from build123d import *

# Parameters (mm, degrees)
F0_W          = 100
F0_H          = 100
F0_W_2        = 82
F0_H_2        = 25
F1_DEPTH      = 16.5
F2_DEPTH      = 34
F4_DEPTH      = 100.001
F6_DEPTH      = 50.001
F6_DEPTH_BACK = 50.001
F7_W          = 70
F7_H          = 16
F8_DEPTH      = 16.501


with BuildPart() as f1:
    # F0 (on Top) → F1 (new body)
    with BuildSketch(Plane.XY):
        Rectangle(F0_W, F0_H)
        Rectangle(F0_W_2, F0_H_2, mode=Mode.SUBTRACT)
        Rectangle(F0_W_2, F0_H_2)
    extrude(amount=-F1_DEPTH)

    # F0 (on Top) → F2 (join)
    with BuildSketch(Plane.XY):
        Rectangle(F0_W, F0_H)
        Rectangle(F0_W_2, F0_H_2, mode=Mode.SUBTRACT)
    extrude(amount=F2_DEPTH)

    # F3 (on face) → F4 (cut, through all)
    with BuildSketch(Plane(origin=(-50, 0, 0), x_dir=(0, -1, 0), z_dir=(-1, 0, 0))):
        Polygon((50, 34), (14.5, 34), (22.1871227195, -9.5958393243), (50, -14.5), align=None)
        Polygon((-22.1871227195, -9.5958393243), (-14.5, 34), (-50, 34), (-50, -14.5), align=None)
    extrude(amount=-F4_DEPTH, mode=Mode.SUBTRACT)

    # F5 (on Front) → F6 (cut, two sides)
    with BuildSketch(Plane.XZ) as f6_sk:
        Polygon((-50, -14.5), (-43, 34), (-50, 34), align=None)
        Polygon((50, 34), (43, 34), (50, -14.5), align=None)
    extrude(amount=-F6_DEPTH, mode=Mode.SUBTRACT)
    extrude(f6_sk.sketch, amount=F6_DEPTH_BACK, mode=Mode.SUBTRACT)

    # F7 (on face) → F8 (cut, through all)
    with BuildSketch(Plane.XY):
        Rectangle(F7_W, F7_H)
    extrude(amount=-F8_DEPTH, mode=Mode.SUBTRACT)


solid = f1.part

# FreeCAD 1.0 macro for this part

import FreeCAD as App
import Part
import Sketcher
from FreeCAD import Vector
Q = App.Units.Quantity

doc = App.newDocument("Part")
params = doc.addObject("Spreadsheet::Sheet", "Params")
for row, (alias, value) in enumerate([
    ("sketch1_width", "100 mm"),
    ("pad1_length", "16.5 mm"),
    ("sketch2_width", "100 mm"),
    ("sketch2_width2", "82 mm"),
    ("sketch2_height", "25 mm"),
    ("pad2_length", "34 mm"),
    ("sketch3_width", "35.5 mm"),
    ("sketch3_height", "48.5 mm"),
    ("sketch4_width", "7 mm"),
    ("sketch4_height", "48.5 mm"),
    ("sketch5_width", "70 mm"),
    ("sketch5_height", "16 mm"),
], start=1):
    params.set(f"A{row}", alias)
    params.set(f"B{row}", "=" + value)
    params.setAlias(f"B{row}", alias)

body = doc.addObject("PartDesign::Body", "Body")

# Sketch on XY plane
sketch1 = body.newObject("Sketcher::SketchObject", "Sketch")
sketch1.AttachmentSupport = (doc.getObject("XY_Plane"), [""])
sketch1.MapMode = "FlatFace"
sketch1.addGeometry([
    Part.LineSegment(Vector(-50, 50, 0), Vector(-50, -50, 0)),
    Part.LineSegment(Vector(-50, -50, 0), Vector(50, -50, 0)),
    Part.LineSegment(Vector(50, -50, 0), Vector(50, 50, 0)),
    Part.LineSegment(Vector(50, 50, 0), Vector(-50, 50, 0)),
], False)
sketch1.addConstraint([
    Sketcher.Constraint("Coincident", 0, 2, 1, 1),
    Sketcher.Constraint("Coincident", 1, 2, 2, 1),
    Sketcher.Constraint("Coincident", 2, 2, 3, 1),
    Sketcher.Constraint("Coincident", 3, 2, 0, 1),
    Sketcher.Constraint("Vertical", 0),
    Sketcher.Constraint("Horizontal", 1),
    Sketcher.Constraint("Vertical", 2),
    Sketcher.Constraint("Horizontal", 3),
    Sketcher.Constraint("Symmetric", 0, 2, 2, 2, -1, 1),
    Sketcher.Constraint("Equal", 3, 0),
    Sketcher.Constraint("DistanceX", 1, 1, 1, 2, Q("100 mm")),
])
sketch1.setExpression("Constraints[10]", "Params.sketch1_width")
pad1 = body.newObject("PartDesign::Pad", "Pad")
pad1.Profile = sketch1
pad1.setExpression("Length", "Params.pad1_length")
pad1.Reversed = True

# Sketch on XY plane
sketch2 = body.newObject("Sketcher::SketchObject", "Sketch001")
sketch2.AttachmentSupport = (doc.getObject("XY_Plane"), [""])
sketch2.MapMode = "FlatFace"
sketch2.addGeometry([
    Part.LineSegment(Vector(-50, 50, 0), Vector(-50, -50, 0)),  # 0
    Part.LineSegment(Vector(-50, -50, 0), Vector(50, -50, 0)),  # 1
    Part.LineSegment(Vector(50, -50, 0), Vector(50, 50, 0)),  # 2
    Part.LineSegment(Vector(50, 50, 0), Vector(-50, 50, 0)),  # 3
    Part.LineSegment(Vector(41, -12, 0), Vector(-41, -12, 0)),  # 4
    Part.LineSegment(Vector(-41, -12, 0), Vector(-41, 12, 0)),  # 5
    Part.LineSegment(Vector(-41, 12, 0), Vector(41, 12, 0)),  # 6
    Part.LineSegment(Vector(41, 12, 0), Vector(41, -12, 0)),  # 7
], False)
sketch2.addConstraint([
    Sketcher.Constraint("Coincident", 0, 2, 1, 1),
    Sketcher.Constraint("Coincident", 1, 2, 2, 1),
    Sketcher.Constraint("Coincident", 2, 2, 3, 1),
    Sketcher.Constraint("Coincident", 3, 2, 0, 1),
    Sketcher.Constraint("Coincident", 4, 2, 5, 1),
    Sketcher.Constraint("Coincident", 5, 2, 6, 1),
    Sketcher.Constraint("Coincident", 6, 2, 7, 1),
    Sketcher.Constraint("Coincident", 7, 2, 4, 1),
    Sketcher.Constraint("Vertical", 0),
    Sketcher.Constraint("Horizontal", 1),
    Sketcher.Constraint("Vertical", 2),
    Sketcher.Constraint("Horizontal", 3),
    Sketcher.Constraint("Horizontal", 4),
    Sketcher.Constraint("Vertical", 5),
    Sketcher.Constraint("Horizontal", 6),
    Sketcher.Constraint("Vertical", 7),
    Sketcher.Constraint("Symmetric", 0, 2, 2, 2, -1, 1),
    Sketcher.Constraint("Symmetric", 4, 2, 6, 2, -1, 1),
    Sketcher.Constraint("Equal", 3, 0),
    Sketcher.Constraint("DistanceX", 1, 1, 1, 2, Q("100 mm")),
    Sketcher.Constraint("DistanceX", 4, 2, 4, 1, Q("82 mm")),
    Sketcher.Constraint("DistanceY", 5, 1, 5, 2, Q("25 mm")),
])
sketch2.setExpression("Constraints[19]", "Params.sketch2_width")
sketch2.setExpression("Constraints[20]", "Params.sketch2_width2")
sketch2.setExpression("Constraints[21]", "Params.sketch2_height")
pad2 = body.newObject("PartDesign::Pad", "Pad001")
pad2.Profile = sketch2
pad2.setExpression("Length", "Params.pad2_length")

# Sketch on YZ plane
sketch3 = body.newObject("Sketcher::SketchObject", "Sketch002")
sketch3.AttachmentSupport = (doc.getObject("YZ_Plane"), [""])
sketch3.MapMode = "FlatFace"
sketch3.AttachmentOffset = App.Placement(Vector(0, 0, -50), App.Rotation())
sketch3.addGeometry([
    Part.LineSegment(Vector(-50, 34, 0), Vector(-14, 34, 0)),  # 0
    Part.LineSegment(Vector(-14, 34, 0), Vector(-22, -10, 0)),  # 1
    Part.LineSegment(Vector(-22, -10, 0), Vector(-50, -14, 0)),  # 2
    Part.LineSegment(Vector(-50, -14, 0), Vector(-50, 34, 0)),  # 3
    Part.LineSegment(Vector(22, -10, 0), Vector(14, 34, 0)),  # 4
    Part.LineSegment(Vector(14, 34, 0), Vector(50, 34, 0)),  # 5
    Part.LineSegment(Vector(50, 34, 0), Vector(50, -14, 0)),  # 6
    Part.LineSegment(Vector(50, -14, 0), Vector(22, -10, 0)),  # 7
], False)
sketch3.addConstraint([
    Sketcher.Constraint("Coincident", 0, 2, 1, 1),
    Sketcher.Constraint("Coincident", 1, 2, 2, 1),
    Sketcher.Constraint("Coincident", 2, 2, 3, 1),
    Sketcher.Constraint("Coincident", 3, 2, 0, 1),
    Sketcher.Constraint("Coincident", 4, 2, 5, 1),
    Sketcher.Constraint("Coincident", 5, 2, 6, 1),
    Sketcher.Constraint("Coincident", 6, 2, 7, 1),
    Sketcher.Constraint("Coincident", 7, 2, 4, 1),
    Sketcher.Constraint("Horizontal", 0),
    Sketcher.Constraint("Vertical", 3),
    Sketcher.Constraint("Horizontal", 5),
    Sketcher.Constraint("Vertical", 6),
    Sketcher.Constraint("Symmetric", 0, 2, 4, 2, -2),
    Sketcher.Constraint("Symmetric", 2, 2, 6, 2, -2),
    Sketcher.Constraint("Symmetric", 1, 2, 7, 2, -2),
    Sketcher.Constraint("Perpendicular", 2, 4),
    Sketcher.Constraint("Angle", 1, Q("-100 deg")),
    Sketcher.Constraint("DistanceX", 0, 1, 0, 2, Q("35.5 mm")),
    Sketcher.Constraint("DistanceY", 3, 1, 3, 2, Q("48.5 mm")),
    Sketcher.Constraint("DistanceY", -1, 1, 0, 2, Q("34 mm")),
    Sketcher.Constraint("DistanceX", 2, 2, -1, 1, Q("50 mm")),
])
sketch3.setExpression("Constraints[17]", "Params.sketch3_width")
sketch3.setExpression("Constraints[18]", "Params.sketch3_height")
pocket1 = body.newObject("PartDesign::Pocket", "Pocket")
pocket1.Profile = sketch3
pocket1.Type = "ThroughAll"
pocket1.Reversed = True

# Sketch on XZ plane
sketch4 = body.newObject("Sketcher::SketchObject", "Sketch003")
sketch4.AttachmentSupport = (doc.getObject("XZ_Plane"), [""])
sketch4.MapMode = "FlatFace"
sketch4.addGeometry([
    Part.LineSegment(Vector(-50, -14, 0), Vector(-43, 34, 0)),  # 0
    Part.LineSegment(Vector(-43, 34, 0), Vector(-50, 34, 0)),  # 1
    Part.LineSegment(Vector(-50, 34, 0), Vector(-50, -14, 0)),  # 2
    Part.LineSegment(Vector(50, 34, 0), Vector(43, 34, 0)),  # 3
    Part.LineSegment(Vector(43, 34, 0), Vector(50, -14, 0)),  # 4
    Part.LineSegment(Vector(50, -14, 0), Vector(50, 34, 0)),  # 5
], False)
sketch4.addConstraint([
    Sketcher.Constraint("Coincident", 0, 2, 1, 1),
    Sketcher.Constraint("Coincident", 1, 2, 2, 1),
    Sketcher.Constraint("Coincident", 2, 2, 0, 1),
    Sketcher.Constraint("Coincident", 3, 2, 4, 1),
    Sketcher.Constraint("Coincident", 4, 2, 5, 1),
    Sketcher.Constraint("Coincident", 5, 2, 3, 1),
    Sketcher.Constraint("Horizontal", 1),
    Sketcher.Constraint("Vertical", 2),
    Sketcher.Constraint("Horizontal", 3),
    Sketcher.Constraint("Vertical", 5),
    Sketcher.Constraint("Symmetric", 0, 2, 3, 2, -2),
    Sketcher.Constraint("Symmetric", 2, 2, 4, 2, -2),
    Sketcher.Constraint("DistanceX", 1, 2, 1, 1, Q("7 mm")),
    Sketcher.Constraint("DistanceY", 2, 2, 2, 1, Q("48.5 mm")),
    Sketcher.Constraint("DistanceX", 0, 2, -1, 1, Q("43 mm")),
    Sketcher.Constraint("DistanceY", -1, 1, 0, 2, Q("34 mm")),
])
sketch4.setExpression("Constraints[12]", "Params.sketch4_width")
sketch4.setExpression("Constraints[13]", "Params.sketch4_height")
pocket2 = body.newObject("PartDesign::Pocket", "Pocket001")
pocket2.Profile = sketch4
pocket2.Type = "ThroughAll"
pocket2.Midplane = True

# Sketch on XY plane
sketch5 = body.newObject("Sketcher::SketchObject", "Sketch004")
sketch5.AttachmentSupport = (doc.getObject("XY_Plane"), [""])
sketch5.MapMode = "FlatFace"
sketch5.addGeometry([
    Part.LineSegment(Vector(-35, 8, 0), Vector(-35, -8, 0)),
    Part.LineSegment(Vector(-35, -8, 0), Vector(35, -8, 0)),
    Part.LineSegment(Vector(35, -8, 0), Vector(35, 8, 0)),
    Part.LineSegment(Vector(35, 8, 0), Vector(-35, 8, 0)),
], False)
sketch5.addConstraint([
    Sketcher.Constraint("Coincident", 0, 2, 1, 1),
    Sketcher.Constraint("Coincident", 1, 2, 2, 1),
    Sketcher.Constraint("Coincident", 2, 2, 3, 1),
    Sketcher.Constraint("Coincident", 3, 2, 0, 1),
    Sketcher.Constraint("Vertical", 0),
    Sketcher.Constraint("Horizontal", 1),
    Sketcher.Constraint("Vertical", 2),
    Sketcher.Constraint("Horizontal", 3),
    Sketcher.Constraint("Symmetric", 0, 2, 2, 2, -1, 1),
    Sketcher.Constraint("DistanceX", 1, 1, 1, 2, Q("70 mm")),
    Sketcher.Constraint("DistanceY", 0, 2, 0, 1, Q("16 mm")),
])
sketch5.setExpression("Constraints[9]", "Params.sketch5_width")
sketch5.setExpression("Constraints[10]", "Params.sketch5_height")
pocket3 = body.newObject("PartDesign::Pocket", "Pocket002")
pocket3.Profile = sketch5
pocket3.Type = "ThroughAll"

doc.recompute()
